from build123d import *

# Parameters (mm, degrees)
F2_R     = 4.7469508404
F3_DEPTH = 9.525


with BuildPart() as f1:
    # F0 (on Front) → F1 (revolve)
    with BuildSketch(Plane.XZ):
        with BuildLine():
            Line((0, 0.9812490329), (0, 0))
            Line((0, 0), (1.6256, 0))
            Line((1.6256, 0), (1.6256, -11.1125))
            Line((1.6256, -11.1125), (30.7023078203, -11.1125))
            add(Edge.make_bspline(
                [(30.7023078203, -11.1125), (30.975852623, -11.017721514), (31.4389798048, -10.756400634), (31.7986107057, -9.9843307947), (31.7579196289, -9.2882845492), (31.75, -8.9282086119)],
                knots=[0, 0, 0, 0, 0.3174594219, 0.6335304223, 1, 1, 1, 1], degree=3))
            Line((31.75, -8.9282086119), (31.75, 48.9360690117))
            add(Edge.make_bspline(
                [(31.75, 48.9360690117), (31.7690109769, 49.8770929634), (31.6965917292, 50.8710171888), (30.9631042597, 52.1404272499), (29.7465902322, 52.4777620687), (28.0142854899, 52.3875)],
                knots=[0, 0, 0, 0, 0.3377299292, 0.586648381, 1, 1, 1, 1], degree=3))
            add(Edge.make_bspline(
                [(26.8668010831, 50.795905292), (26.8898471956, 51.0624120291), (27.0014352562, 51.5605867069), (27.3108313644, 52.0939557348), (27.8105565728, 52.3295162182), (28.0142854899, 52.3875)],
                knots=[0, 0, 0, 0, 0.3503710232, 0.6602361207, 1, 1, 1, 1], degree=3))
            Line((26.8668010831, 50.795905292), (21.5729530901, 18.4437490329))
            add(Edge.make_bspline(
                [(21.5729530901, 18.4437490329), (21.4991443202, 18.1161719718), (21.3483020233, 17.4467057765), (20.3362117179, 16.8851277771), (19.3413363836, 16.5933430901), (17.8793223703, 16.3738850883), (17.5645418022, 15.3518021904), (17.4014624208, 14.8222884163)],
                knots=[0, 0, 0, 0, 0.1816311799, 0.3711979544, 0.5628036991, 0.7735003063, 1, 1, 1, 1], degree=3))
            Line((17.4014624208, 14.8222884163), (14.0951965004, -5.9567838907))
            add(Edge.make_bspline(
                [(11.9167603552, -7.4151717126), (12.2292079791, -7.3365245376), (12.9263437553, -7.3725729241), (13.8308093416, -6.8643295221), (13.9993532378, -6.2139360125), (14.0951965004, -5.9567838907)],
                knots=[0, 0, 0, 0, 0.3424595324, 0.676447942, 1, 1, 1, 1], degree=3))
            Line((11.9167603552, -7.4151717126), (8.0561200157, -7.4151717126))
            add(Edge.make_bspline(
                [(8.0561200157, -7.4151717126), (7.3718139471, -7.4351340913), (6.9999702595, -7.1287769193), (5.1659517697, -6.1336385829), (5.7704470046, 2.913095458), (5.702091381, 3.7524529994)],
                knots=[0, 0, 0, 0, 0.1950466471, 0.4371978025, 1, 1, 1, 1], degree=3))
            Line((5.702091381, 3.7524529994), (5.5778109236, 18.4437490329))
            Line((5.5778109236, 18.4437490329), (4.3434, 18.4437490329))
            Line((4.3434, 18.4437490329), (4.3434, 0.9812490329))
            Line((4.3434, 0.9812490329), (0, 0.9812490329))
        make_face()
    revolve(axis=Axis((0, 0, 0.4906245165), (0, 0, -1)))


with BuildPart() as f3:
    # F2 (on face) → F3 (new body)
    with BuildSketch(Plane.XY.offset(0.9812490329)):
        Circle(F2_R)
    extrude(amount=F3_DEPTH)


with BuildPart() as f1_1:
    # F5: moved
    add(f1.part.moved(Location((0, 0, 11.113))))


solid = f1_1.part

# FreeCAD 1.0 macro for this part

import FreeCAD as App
import Part
import Sketcher
Q = App.Units.Quantity

doc = App.newDocument("Part")
params = doc.addObject("Spreadsheet::Sheet", "Params")
for row, (alias, value) in enumerate([
    ("sketch1_width", "0.064 in"),
    ("sketch1_width2", "0.171 in"),
    ("sketch1_height", "0.6875 in"),
    ("revolution_angle", "360 deg"),
    ("pad1_length", "0.375 in"),
], start=1):
    params.set(f"A{row}", alias)
    params.set(f"B{row}", "=" + value)
    params.setAlias(f"B{row}", alias)

body = doc.addObject("PartDesign::Body", "Body")

# Sketch on XZ plane
sketch1 = doc.addObject("Sketcher::SketchObject", "Sketch")
body.addObject(sketch1)
sketch1.AttachmentSupport = (doc.XZ_Plane, [""])
sketch1.MapMode = "FlatFace"
sketch1.addGeometry(Part.LineSegment(App.Vector(0, 0.981249, 0), App.Vector(0, 0, 0)), False)
sketch1.addGeometry(Part.LineSegment(App.Vector(0, 0, 0), App.Vector(1.6256, 0, 0)), False)
sketch1.addGeometry(Part.LineSegment(App.Vector(1.6256, 0, 0), App.Vector(1.6256, -11.1125, 0)), False)
sketch1.addGeometry(Part.LineSegment(App.Vector(1.6256, -11.1125, 0), App.Vector(30.702308, -11.1125, 0)), False)
sketch1.addGeometry(Part.BSplineCurve([App.Vector(30.702308, -11.1125, 0), App.Vector(30.975853, -11.017722, 0), App.Vector(31.43898, -10.756401, 0), App.Vector(31.798611, -9.984331, 0), App.Vector(31.75792, -9.288285, 0), App.Vector(31.75, -8.928209, 0)], [4, 1, 1, 4], [0, 0.317459422, 0.633530422, 1], False, 3, [1, 1, 1, 1, 1, 1], False), False)
sketch1.addGeometry(Part.LineSegment(App.Vector(31.75, -8.928209, 0), App.Vector(31.75, 48.936069, 0)), False)
sketch1.addGeometry(Part.BSplineCurve([App.Vector(31.75, 48.936069, 0), App.Vector(31.769011, 49.877093, 0), App.Vector(31.696592, 50.871017, 0), App.Vector(30.963104, 52.140427, 0), App.Vector(29.74659, 52.477762, 0), App.Vector(28.014285, 52.3875, 0)], [4, 1, 1, 4], [0, 0.337729929, 0.586648381, 1], False, 3, [1, 1, 1, 1, 1, 1], False), False)
sketch1.addGeometry(Part.BSplineCurve([App.Vector(26.866801, 50.795905, 0), App.Vector(26.889847, 51.062412, 0), App.Vector(27.001435, 51.560587, 0), App.Vector(27.310831, 52.093956, 0), App.Vector(27.810557, 52.329516, 0), App.Vector(28.014285, 52.3875, 0)], [4, 1, 1, 4], [0, 0.350371023, 0.660236121, 1], False, 3, [1, 1, 1, 1, 1, 1], False), False)
sketch1.addGeometry(Part.LineSegment(App.Vector(26.866801, 50.795905, 0), App.Vector(21.572953, 18.443749, 0)), False)
sketch1.addGeometry(Part.BSplineCurve([App.Vector(21.572953, 18.443749, 0), App.Vector(21.499144, 18.116172, 0), App.Vector(21.348302, 17.446706, 0), App.Vector(20.336212, 16.885128, 0), App.Vector(19.341336, 16.593343, 0), App.Vector(17.879322, 16.373885, 0), App.Vector(17.564542, 15.351802, 0), App.Vector(17.401462, 14.822288, 0)], [4, 1, 1, 1, 1, 4], [0, 0.18163118, 0.371197954, 0.562803699, 0.773500306, 1], False, 3, [1, 1, 1, 1, 1, 1, 1, 1], False), False)
sketch1.addGeometry(Part.LineSegment(App.Vector(17.401462, 14.822288, 0), App.Vector(14.095197, -5.956784, 0)), False)
sketch1.addGeometry(Part.BSplineCurve([App.Vector(11.91676, -7.415172, 0), App.Vector(12.229208, -7.336525, 0), App.Vector(12.926344, -7.372573, 0), App.Vector(13.830809, -6.86433, 0), App.Vector(13.999353, -6.213936, 0), App.Vector(14.095197, -5.956784, 0)], [4, 1, 1, 4], [0, 0.342459532, 0.676447942, 1], False, 3, [1, 1, 1, 1, 1, 1], False), False)
sketch1.addGeometry(Part.LineSegment(App.Vector(11.91676, -7.415172, 0), App.Vector(8.05612, -7.415172, 0)), False)
sketch1.addGeometry(Part.BSplineCurve([App.Vector(8.05612, -7.415172, 0), App.Vector(7.371814, -7.435134, 0), App.Vector(6.99997, -7.128777, 0), App.Vector(5.165952, -6.133639, 0), App.Vector(5.770447, 2.913095, 0), App.Vector(5.702091, 3.752453, 0)], [4, 1, 1, 4], [0, 0.195046647, 0.437197803, 1], False, 3, [1, 1, 1, 1, 1, 1], False), False)
sketch1.addGeometry(Part.LineSegment(App.Vector(5.702091, 3.752453, 0), App.Vector(5.577811, 18.443749, 0)), False)
sketch1.addGeometry(Part.LineSegment(App.Vector(5.577811, 18.443749, 0), App.Vector(4.3434, 18.443749, 0)), False)
sketch1.addGeometry(Part.LineSegment(App.Vector(4.3434, 18.443749, 0), App.Vector(4.3434, 0.981249, 0)), False)
sketch1.addGeometry(Part.LineSegment(App.Vector(4.3434, 0.981249, 0), App.Vector(0, 0.981249, 0)), False)
sketch1.addConstraint(Sketcher.Constraint("Block", 4))
sketch1.addConstraint(Sketcher.Constraint("Block", 6))
sketch1.addConstraint(Sketcher.Constraint("Block", 7))
sketch1.addConstraint(Sketcher.Constraint("Block", 9))
sketch1.addConstraint(Sketcher.Constraint("Block", 11))
sketch1.addConstraint(Sketcher.Constraint("Block", 13))
sketch1.addConstraint(Sketcher.Constraint("Coincident", 0, 2, 1, 1))
sketch1.addConstraint(Sketcher.Constraint("Coincident", 1, 2, 2, 1))
sketch1.addConstraint(Sketcher.Constraint("Coincident", 2, 2, 3, 1))
sketch1.addConstraint(Sketcher.Constraint("Coincident", 3, 2, 4, 1))
sketch1.addConstraint(Sketcher.Constraint("Coincident", 4, 2, 5, 1))
sketch1.addConstraint(Sketcher.Constraint("Coincident", 5, 2, 6, 1))
sketch1.addConstraint(Sketcher.Constraint("Coincident", 7, 1, 8, 1))
sketch1.addConstraint(Sketcher.Constraint("Coincident", 8, 2, 9, 1))
sketch1.addConstraint(Sketcher.Constraint("Coincident", 9, 2, 10, 1))
sketch1.addConstraint(Sketcher.Constraint("Coincident", 10, 2, 11, 2))
sketch1.addConstraint(Sketcher.Constraint("Coincident", 11, 1, 12, 1))
sketch1.addConstraint(Sketcher.Constraint("Coincident", 12, 2, 13, 1))
sketch1.addConstraint(Sketcher.Constraint("Coincident", 13, 2, 14, 1))
sketch1.addConstraint(Sketcher.Constraint("Coincident", 14, 2, 15, 1))
sketch1.addConstraint(Sketcher.Constraint("Coincident", 15, 2, 16, 1))
sketch1.addConstraint(Sketcher.Constraint("Coincident", 16, 2, 17, 1))
sketch1.addConstraint(Sketcher.Constraint("Coincident", 17, 2, 0, 1))
sketch1.addConstraint(Sketcher.Constraint("Vertical", 0))
sketch1.addConstraint(Sketcher.Constraint("Horizontal", 1))
sketch1.addConstraint(Sketcher.Constraint("Vertical", 2))
sketch1.addConstraint(Sketcher.Constraint("Horizontal", 3))
sketch1.addConstraint(Sketcher.Constraint("Horizontal", 15))
sketch1.addConstraint(Sketcher.Constraint("Vertical", 16))
sketch1.addConstraint(Sketcher.Constraint("Horizontal", 17))
sketch1.addConstraint(Sketcher.Constraint("Coincident", 0, 2, -1, 1))
sketch1.addConstraint(Sketcher.Constraint("Horizontal", 8, 2, 14, 2))
sketch1.addConstraint(Sketcher.Constraint("DistanceX", 1, 1, 1, 2, Q("0.064 in")))
sketch1.addConstraint(Sketcher.Constraint("DistanceX", 17, 2, 17, 1, Q("0.171 in")))
sketch1.addConstraint(Sketcher.Constraint("DistanceY", 16, 2, 16, 1, Q("0.6875 in")))
sketch1.addConstraint(Sketcher.Constraint("DistanceX", 15, 2, 15, 1, Q("1.234411 mm")))
sketch1.setExpression("Constraints[32]", "Params.sketch1_width")
sketch1.setExpression("Constraints[33]", "Params.sketch1_width2")
sketch1.setExpression("Constraints[34]", "Params.sketch1_height")
revolution = doc.addObject("PartDesign::Revolution", "Revolution")
body.addObject(revolution)
revolution.Profile = sketch1
revolution.ReferenceAxis = (sketch1, ["V_Axis"])
revolution.setExpression("Angle", "Params.revolution_angle")
body2 = doc.addObject("PartDesign::Body", "Body001")

# Sketch on XY plane
sketch2 = doc.addObject("Sketcher::SketchObject", "Sketch001")
body2.addObject(sketch2)
sketch2.AttachmentSupport = (doc.getObject("XY_Plane001"), [""])
sketch2.MapMode = "FlatFace"
sketch2.AttachmentOffset = App.Placement(App.Vector(0, 0, 0.981249), App.Rotation())
sketch2.addGeometry(Part.Circle(App.Vector(0, 0, 0), App.Vector(0, 0, 1), 4.7), False)
sketch2.addConstraint(Sketcher.Constraint("Coincident", 0, 3, -1, 1))
sketch2.addConstraint(Sketcher.Constraint("Diameter", 0, Q("9.493902 mm")))
pad1 = doc.addObject("PartDesign::Pad", "Pad")
body2.addObject(pad1)
pad1.Profile = sketch2
pad1.setExpression("Length", "Params.pad1_length")
body3 = doc.addObject("PartDesign::Body", "Body002")
doc.recompute()

body.Placement = App.Placement(App.Vector(0, 0, 11.113), App.Rotation(App.Vector(0, 0, 1), 0))
boolean = doc.addObject("PartDesign::Boolean", "Boolean")
body3.addObject(boolean)
boolean.Type = "Fuse"
boolean.addObjects([body])
body2.Visibility = False

doc.recompute()
